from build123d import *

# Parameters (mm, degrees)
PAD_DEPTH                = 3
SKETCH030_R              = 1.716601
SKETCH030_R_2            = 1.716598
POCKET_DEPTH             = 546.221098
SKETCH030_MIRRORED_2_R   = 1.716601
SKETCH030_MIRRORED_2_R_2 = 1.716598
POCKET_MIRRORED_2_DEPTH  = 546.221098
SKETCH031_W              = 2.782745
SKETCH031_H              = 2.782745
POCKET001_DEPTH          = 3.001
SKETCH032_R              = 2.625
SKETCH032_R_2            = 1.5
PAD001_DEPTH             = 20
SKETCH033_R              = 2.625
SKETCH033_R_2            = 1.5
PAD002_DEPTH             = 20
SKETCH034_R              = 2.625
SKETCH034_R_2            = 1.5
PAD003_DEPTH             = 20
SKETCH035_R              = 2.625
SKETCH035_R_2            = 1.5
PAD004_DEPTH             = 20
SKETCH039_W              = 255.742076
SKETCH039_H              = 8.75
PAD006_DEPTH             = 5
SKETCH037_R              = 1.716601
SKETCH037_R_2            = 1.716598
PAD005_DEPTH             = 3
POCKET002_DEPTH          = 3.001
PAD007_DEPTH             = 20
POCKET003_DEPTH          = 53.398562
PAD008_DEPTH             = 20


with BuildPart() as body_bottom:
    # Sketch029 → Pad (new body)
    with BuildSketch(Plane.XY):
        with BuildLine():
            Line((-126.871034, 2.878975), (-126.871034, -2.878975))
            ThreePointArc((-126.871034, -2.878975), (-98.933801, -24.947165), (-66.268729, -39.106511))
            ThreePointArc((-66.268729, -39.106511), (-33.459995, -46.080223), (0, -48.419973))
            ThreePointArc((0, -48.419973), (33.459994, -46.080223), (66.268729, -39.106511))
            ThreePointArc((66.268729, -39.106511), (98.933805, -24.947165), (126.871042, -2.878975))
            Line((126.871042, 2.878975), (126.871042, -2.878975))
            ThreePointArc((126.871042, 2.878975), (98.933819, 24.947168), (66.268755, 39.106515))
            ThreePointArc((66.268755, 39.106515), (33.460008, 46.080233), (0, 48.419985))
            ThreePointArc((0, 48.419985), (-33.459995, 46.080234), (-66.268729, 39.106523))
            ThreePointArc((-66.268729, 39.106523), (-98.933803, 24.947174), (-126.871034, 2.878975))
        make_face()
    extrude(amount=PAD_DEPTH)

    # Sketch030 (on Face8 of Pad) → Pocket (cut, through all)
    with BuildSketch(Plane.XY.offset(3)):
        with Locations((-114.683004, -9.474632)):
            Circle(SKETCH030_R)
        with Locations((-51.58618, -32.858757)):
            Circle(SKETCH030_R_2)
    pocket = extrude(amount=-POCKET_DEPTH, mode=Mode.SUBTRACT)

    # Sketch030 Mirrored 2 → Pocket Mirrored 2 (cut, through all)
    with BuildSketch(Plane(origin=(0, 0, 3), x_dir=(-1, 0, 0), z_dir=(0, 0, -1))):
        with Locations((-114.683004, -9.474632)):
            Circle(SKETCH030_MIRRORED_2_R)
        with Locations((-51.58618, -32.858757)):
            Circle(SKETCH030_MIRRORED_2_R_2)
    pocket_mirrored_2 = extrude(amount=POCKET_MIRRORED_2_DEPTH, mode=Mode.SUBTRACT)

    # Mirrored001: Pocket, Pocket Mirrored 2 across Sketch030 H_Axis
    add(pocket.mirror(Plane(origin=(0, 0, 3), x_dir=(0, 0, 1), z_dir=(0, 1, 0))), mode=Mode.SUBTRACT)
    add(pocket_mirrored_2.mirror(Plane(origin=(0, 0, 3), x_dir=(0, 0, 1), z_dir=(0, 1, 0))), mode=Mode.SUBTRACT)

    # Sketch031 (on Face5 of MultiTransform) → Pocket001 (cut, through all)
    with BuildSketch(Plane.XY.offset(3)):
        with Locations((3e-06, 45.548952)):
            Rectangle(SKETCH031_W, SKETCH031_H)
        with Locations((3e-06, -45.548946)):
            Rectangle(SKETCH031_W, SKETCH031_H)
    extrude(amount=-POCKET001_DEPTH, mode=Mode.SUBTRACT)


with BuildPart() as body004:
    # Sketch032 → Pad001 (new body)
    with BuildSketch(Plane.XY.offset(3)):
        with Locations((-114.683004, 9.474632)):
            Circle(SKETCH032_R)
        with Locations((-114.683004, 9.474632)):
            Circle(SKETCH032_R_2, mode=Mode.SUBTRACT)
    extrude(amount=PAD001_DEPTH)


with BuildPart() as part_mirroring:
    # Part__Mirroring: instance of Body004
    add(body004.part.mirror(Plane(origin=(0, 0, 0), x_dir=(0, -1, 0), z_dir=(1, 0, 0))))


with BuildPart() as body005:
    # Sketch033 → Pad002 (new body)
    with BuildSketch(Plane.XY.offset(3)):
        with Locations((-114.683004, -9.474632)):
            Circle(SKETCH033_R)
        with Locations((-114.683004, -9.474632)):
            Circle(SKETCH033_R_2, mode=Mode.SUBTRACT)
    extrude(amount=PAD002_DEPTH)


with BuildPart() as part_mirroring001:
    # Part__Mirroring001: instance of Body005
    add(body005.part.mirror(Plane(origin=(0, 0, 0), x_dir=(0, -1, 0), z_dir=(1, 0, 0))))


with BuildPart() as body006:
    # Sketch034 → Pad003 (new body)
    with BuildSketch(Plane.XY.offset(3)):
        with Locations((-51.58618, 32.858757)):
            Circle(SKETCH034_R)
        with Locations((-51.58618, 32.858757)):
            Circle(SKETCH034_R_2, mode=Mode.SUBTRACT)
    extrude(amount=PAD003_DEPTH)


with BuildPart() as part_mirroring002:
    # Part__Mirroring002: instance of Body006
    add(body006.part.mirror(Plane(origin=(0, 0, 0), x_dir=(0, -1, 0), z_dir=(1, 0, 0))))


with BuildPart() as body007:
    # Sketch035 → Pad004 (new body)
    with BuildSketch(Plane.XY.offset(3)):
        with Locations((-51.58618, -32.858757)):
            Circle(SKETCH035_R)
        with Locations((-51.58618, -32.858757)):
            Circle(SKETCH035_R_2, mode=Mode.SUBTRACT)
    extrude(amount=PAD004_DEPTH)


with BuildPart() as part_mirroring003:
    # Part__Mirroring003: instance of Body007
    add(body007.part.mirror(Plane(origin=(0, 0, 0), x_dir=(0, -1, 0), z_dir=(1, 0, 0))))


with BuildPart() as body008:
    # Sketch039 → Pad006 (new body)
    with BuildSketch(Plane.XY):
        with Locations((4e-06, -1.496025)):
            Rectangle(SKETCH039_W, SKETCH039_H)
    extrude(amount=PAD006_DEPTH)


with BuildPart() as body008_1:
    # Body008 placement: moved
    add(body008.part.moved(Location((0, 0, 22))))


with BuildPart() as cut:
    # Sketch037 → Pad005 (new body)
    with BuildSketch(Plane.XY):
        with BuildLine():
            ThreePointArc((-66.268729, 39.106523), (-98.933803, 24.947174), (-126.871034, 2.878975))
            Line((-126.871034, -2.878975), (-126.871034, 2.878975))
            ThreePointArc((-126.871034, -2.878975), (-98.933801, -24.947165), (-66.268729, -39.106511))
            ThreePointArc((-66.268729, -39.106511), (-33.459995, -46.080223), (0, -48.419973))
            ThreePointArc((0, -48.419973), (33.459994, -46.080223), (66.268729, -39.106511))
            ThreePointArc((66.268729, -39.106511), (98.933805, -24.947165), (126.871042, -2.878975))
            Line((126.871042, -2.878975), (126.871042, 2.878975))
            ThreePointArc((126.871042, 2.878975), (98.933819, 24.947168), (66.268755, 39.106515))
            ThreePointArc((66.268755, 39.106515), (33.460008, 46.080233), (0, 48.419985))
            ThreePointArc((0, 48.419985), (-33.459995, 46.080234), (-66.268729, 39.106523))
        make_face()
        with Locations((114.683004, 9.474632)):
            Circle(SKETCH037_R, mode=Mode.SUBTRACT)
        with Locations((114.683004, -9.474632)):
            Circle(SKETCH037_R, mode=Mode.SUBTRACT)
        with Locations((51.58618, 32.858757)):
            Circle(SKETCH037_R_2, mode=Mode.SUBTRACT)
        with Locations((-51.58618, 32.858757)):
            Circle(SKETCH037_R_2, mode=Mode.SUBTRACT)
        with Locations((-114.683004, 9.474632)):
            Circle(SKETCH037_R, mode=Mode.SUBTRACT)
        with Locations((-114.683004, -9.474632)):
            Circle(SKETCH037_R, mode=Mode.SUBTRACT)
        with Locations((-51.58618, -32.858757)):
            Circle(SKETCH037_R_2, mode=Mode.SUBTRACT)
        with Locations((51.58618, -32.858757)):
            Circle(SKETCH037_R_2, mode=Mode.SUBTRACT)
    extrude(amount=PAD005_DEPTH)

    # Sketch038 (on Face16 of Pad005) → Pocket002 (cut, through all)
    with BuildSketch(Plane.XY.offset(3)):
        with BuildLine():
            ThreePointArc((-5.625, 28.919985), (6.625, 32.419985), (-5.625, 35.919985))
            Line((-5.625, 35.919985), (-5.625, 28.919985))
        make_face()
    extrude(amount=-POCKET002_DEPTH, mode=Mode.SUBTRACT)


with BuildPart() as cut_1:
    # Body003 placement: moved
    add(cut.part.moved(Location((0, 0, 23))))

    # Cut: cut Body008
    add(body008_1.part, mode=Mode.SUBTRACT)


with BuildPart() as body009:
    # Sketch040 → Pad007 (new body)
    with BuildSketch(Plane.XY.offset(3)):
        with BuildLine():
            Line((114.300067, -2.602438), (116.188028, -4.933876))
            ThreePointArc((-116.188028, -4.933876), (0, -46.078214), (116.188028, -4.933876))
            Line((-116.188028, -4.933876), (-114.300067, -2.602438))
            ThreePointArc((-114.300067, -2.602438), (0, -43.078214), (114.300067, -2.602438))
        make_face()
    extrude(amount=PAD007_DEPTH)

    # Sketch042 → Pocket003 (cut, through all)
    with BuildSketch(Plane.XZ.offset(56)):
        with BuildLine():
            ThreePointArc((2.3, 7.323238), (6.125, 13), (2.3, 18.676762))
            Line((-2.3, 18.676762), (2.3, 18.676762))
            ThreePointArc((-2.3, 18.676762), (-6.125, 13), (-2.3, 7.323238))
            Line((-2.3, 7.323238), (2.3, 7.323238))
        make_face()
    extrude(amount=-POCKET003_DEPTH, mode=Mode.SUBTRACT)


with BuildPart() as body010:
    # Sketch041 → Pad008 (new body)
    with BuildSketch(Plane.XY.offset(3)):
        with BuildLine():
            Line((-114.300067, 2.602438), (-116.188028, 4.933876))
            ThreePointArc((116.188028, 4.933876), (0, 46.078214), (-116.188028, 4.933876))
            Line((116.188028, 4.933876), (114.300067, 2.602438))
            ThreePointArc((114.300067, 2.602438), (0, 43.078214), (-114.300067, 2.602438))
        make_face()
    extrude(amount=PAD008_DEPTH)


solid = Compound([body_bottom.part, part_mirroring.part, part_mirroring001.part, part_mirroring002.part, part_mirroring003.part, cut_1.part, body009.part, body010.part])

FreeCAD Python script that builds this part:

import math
import FreeCAD as App
import Part
import Sketcher
Q = App.Units.Quantity


def add_polygon(sketch, points):
    """Adds a closed chain of lines whose ends are joined by coincident constraints."""
    first, n = sketch.GeometryCount, len(points)
    for a, b in zip(points, points[1:] + points[:1]):
        sketch.addGeometry(Part.LineSegment(App.Vector(*a, 0), App.Vector(*b, 0)), False)
    for i in range(n):
        sketch.addConstraint(Sketcher.Constraint("Coincident", first + i, 2, first + (i + 1) % n, 1))

doc = App.newDocument("Part")
body = doc.addObject("PartDesign::Body", "Body")

# Sketch on XY plane
sketch1 = doc.addObject("Sketcher::SketchObject", "Sketch")
body.addObject(sketch1)
sketch1.AttachmentSupport = (doc.XY_Plane, [""])
sketch1.MapMode = "FlatFace"
sketch1.addGeometry([
    Part.LineSegment(App.Vector(-126.871034, 2.878975, 0), App.Vector(-126.871034, -2.878975, 0)),  # 0
    Part.ArcOfCircle(Part.Circle(App.Vector(-28.352566, 93.122845, 0), App.Vector(0, 0, 1), 137.558126), math.radians(-135.741235), math.radians(-106.000002)),  # 1
    Part.ArcOfCircle(Part.Circle(App.Vector(-0.000009, 191.999957, 0), App.Vector(0, 0, 1), 240.41993), math.radians(-106.000001), math.radians(-89.999998)),  # 2
    Part.ArcOfCircle(Part.Circle(App.Vector(0.000007, 191.999971, 0), App.Vector(0, 0, 1), 240.419944), math.radians(-90.000002), math.radians(-73.999999)),  # 3
    Part.ArcOfCircle(Part.Circle(App.Vector(28.352563, 93.122871, 0), App.Vector(0, 0, 1), 137.558152), math.radians(-74), math.radians(-44.25877)),  # 4
    Part.LineSegment(App.Vector(126.871042, -2.878975, 0), App.Vector(126.871042, 2.878975, 0)),  # 5
    Part.ArcOfCircle(Part.Circle(App.Vector(28.35261, -93.122751, 0), App.Vector(0, 0, 1), 137.558035), math.radians(44.258747), math.radians(73.999995)),  # 6
    Part.ArcOfCircle(Part.Circle(App.Vector(0.000009, -191.999936, 0), App.Vector(0, 0, 1), 240.419921), math.radians(73.999991), math.radians(90.000002)),  # 7
    Part.ArcOfCircle(Part.Circle(App.Vector(0.000005, -192.000046, 0), App.Vector(0, 0, 1), 240.420031), math.radians(90.000001), math.radians(105.999998)),  # 8
    Part.ArcOfCircle(Part.Circle(App.Vector(-28.352592, -93.122757, 0), App.Vector(0, 0, 1), 137.558045), math.radians(106), math.radians(135.741254)),  # 9
], False)
sketch1.addConstraint([
    Sketcher.Constraint("Coincident", 0, 2, 1, 1),
    Sketcher.Constraint("Coincident", 1, 2, 2, 1),
    Sketcher.Constraint("Coincident", 2, 2, 3, 1),
    Sketcher.Constraint("Coincident", 3, 2, 4, 1),
    Sketcher.Constraint("Coincident", 4, 2, 5, 1),
    Sketcher.Constraint("Coincident", 5, 2, 6, 1),
    Sketcher.Constraint("Coincident", 6, 2, 7, 1),
    Sketcher.Constraint("Coincident", 7, 2, 8, 1),
    Sketcher.Constraint("Coincident", 8, 2, 9, 1),
    Sketcher.Constraint("Coincident", 9, 2, 0, 1),
    Sketcher.Constraint("Vertical", 0),
    Sketcher.Constraint("Vertical", 5),
    Sketcher.Constraint("PointOnObject", 2, 2, -2),
    Sketcher.Constraint("PointOnObject", 7, 2, -2),
    Sketcher.Constraint("Radius", 2, 240.41993),
    Sketcher.Constraint("Radius", 4, 137.558152),
    Sketcher.Constraint("Radius", 7, 240.419921),
    Sketcher.Constraint("Radius", 8, 240.420031),
    Sketcher.Constraint("Radius", 1, 137.558126),
    Sketcher.Constraint("Radius", 3, 240.419944),
    Sketcher.Constraint("Radius", 6, 137.558035),
    Sketcher.Constraint("Radius", 9, 137.558045),
    Sketcher.Constraint("DistanceY", 2, 2, 4, 2, 45.540998),
    Sketcher.Constraint("DistanceY", 0, 2, 0, 1, 5.75795),
    Sketcher.Constraint("DistanceY", 5, 1, 5, 2, 5.75795),
    Sketcher.Constraint("DistanceY", 4, 3, 3, 3, 98.8771),
    Sketcher.Constraint("DistanceX", 7, 3, 6, 3, 28.352601),
    Sketcher.Constraint("DistanceX", 9, 3, 7, 3, 28.352601),
    Sketcher.Constraint("DistanceY", 9, 3, 1, 3, 186.245601),
    Sketcher.Constraint("DistanceY", 0, 2, 8, 2, 41.985498),
    Sketcher.Constraint("DistanceY", -1, 1, 3, 3, 191.999971),
    Sketcher.Constraint("DistanceX", -1, 1, 6, 3, 28.35261),
    Sketcher.Constraint("DistanceY", 6, 3, -1, 1, 93.122751),
    Sketcher.Constraint("DistanceX", 1, 2, -1, 1, 66.268729),
    Sketcher.Constraint("DistanceY", 1, 2, -1, 1, 39.106511),
    Sketcher.Constraint("DistanceX", -1, 1, 3, 2, 66.268729),
    Sketcher.Constraint("DistanceX", 8, 2, -1, 1, 66.268729),
    Sketcher.Constraint("DistanceX", 4, 3, 6, 2, 37.916192),
])
pad1 = doc.addObject("PartDesign::Pad", "Pad")
body.addObject(pad1)
pad1.Profile = sketch1
pad1.Length = 3

# Sketch on XY plane
sketch2 = doc.addObject("Sketcher::SketchObject", "Sketch001")
body.addObject(sketch2)
sketch2.AttachmentSupport = (doc.XY_Plane, [""])
sketch2.MapMode = "FlatFace"
sketch2.AttachmentOffset = App.Placement(App.Vector(0, 0, 3), App.Rotation())
sketch2.addGeometry([
    Part.Circle(App.Vector(-114.683004, -9.474632, 0), App.Vector(0, 0, 1), 1.716601),
    Part.Circle(App.Vector(-51.58618, -32.858757, 0), App.Vector(0, 0, 1), 1.716598),
], False)
sketch2.addConstraint([
    Sketcher.Constraint("Diameter", 0, 3.433202),
    Sketcher.Constraint("Diameter", 1, 3.433196),
    Sketcher.Constraint("DistanceX", 1, 3, -1, 1, 51.58618),
    Sketcher.Constraint("DistanceX", 0, 3, -1, 1, 114.683004),
    Sketcher.Constraint("DistanceY", 0, 3, -1, 1, 9.474632),
    Sketcher.Constraint("DistanceY", 1, 3, -1, 1, 32.858757),
])
pocket1 = doc.addObject("PartDesign::Pocket", "Pocket")
body.addObject(pocket1)
pocket1.Profile = sketch2
pocket1.Type = "ThroughAll"

# Sketch on XY plane
sketch3 = doc.addObject("Sketcher::SketchObject", "Sketch002")
body.addObject(sketch3)
sketch3.AttachmentSupport = (doc.XY_Plane, [""])
sketch3.MapMode = "FlatFace"
sketch3.AttachmentOffset = App.Placement(App.Vector(0, 0, 3), App.Rotation())
sketch3.addGeometry([
    Part.Circle(App.Vector(114.683004, -9.474632, 0), App.Vector(0, 0, 1), 1.716601),
    Part.Circle(App.Vector(51.58618, -32.858757, 0), App.Vector(0, 0, 1), 1.716598),
], False)
sketch3.addConstraint([
    Sketcher.Constraint("Diameter", 0, 3.433202),
    Sketcher.Constraint("Diameter", 1, 3.433196),
    Sketcher.Constraint("DistanceX", -1, 1, 1, 3, 51.58618),
    Sketcher.Constraint("DistanceX", -1, 1, 0, 3, 114.683004),
    Sketcher.Constraint("DistanceY", 0, 3, -1, 1, 9.474632),
    Sketcher.Constraint("DistanceY", 1, 3, -1, 1, 32.858757),
])
pocket2 = doc.addObject("PartDesign::Pocket", "Pocket001")
body.addObject(pocket2)
pocket2.Profile = sketch3
pocket2.Type = "ThroughAll"
doc.recompute()

mirrored = doc.addObject("PartDesign::Mirrored", "Mirrored")
body.addObject(mirrored)
mirrored.Originals = [pocket1, pocket2]
mirrored.MirrorPlane = (doc.XZ_Plane, [""])
body.Tip = mirrored

# Sketch on XY plane
sketch4 = doc.addObject("Sketcher::SketchObject", "Sketch003")
body.addObject(sketch4)
sketch4.AttachmentSupport = (doc.XY_Plane, [""])
sketch4.MapMode = "FlatFace"
sketch4.AttachmentOffset = App.Placement(App.Vector(0, 0, 3), App.Rotation())
add_polygon(sketch4, [(-1.391369, 46.940325), (-1.391369, 44.157579), (1.391376, 44.157579), (1.391376, 46.940325)])  # lines 0-3
add_polygon(sketch4, [(-1.391369, -44.157573), (-1.391369, -46.940318), (1.391376, -46.940318), (1.391376, -44.157573)])  # lines 4-7
sketch4.addConstraint([
    Sketcher.Constraint("Vertical", 0),
    Sketcher.Constraint("Horizontal", 1),
    Sketcher.Constraint("Vertical", 2),
    Sketcher.Constraint("Horizontal", 3),
    Sketcher.Constraint("Vertical", 4),
    Sketcher.Constraint("Horizontal", 5),
    Sketcher.Constraint("Vertical", 6),
    Sketcher.Constraint("Horizontal", 7),
    Sketcher.Constraint("Symmetric", 2, 2, 4, 2, -1, 1),
    Sketcher.Constraint("Symmetric", 0, 2, 6, 2, -1, 1),
    Sketcher.Constraint("Vertical", 3, 2, 4, 2),
    Sketcher.Constraint("Equal", 7, 0),
    Sketcher.Constraint("DistanceY", 6, 2, 2, 2, 91.097898),
    Sketcher.Constraint("DistanceX", 1, 1, 1, 2, 2.782745),
])
pocket3 = doc.addObject("PartDesign::Pocket", "Pocket002")
body.addObject(pocket3)
pocket3.Profile = sketch4
pocket3.Type = "ThroughAll"
body2 = doc.addObject("PartDesign::Body", "Body001")

# Sketch on XY plane
sketch5 = doc.addObject("Sketcher::SketchObject", "Sketch004")
body2.addObject(sketch5)
sketch5.AttachmentSupport = (doc.getObject("XY_Plane001"), [""])
sketch5.MapMode = "FlatFace"
sketch5.AttachmentOffset = App.Placement(App.Vector(0, 0, 3), App.Rotation())
sketch5.addGeometry([
    Part.Circle(App.Vector(-114.683004, 9.474632, 0), App.Vector(0, 0, 1), 2.625),
    Part.Circle(App.Vector(-114.683004, 9.474632, 0), App.Vector(0, 0, 1), 1.5),
], False)
sketch5.addConstraint([
    Sketcher.Constraint("Coincident", 1, 3, 0, 3),
    Sketcher.Constraint("Diameter", 1, 3.0),
    Sketcher.Constraint("Diameter", 0, 5.25),
    Sketcher.Constraint("DistanceX", 0, 3, -1, 1, 114.683004),
    Sketcher.Constraint("DistanceY", -1, 1, 0, 3, 9.474632),
])
pad2 = doc.addObject("PartDesign::Pad", "Pad001")
body2.addObject(pad2)
pad2.Profile = sketch5
pad2.Length = 20
body3 = doc.addObject("PartDesign::Body", "Body002")
doc.recompute()

mirroring = doc.addObject("Part::Mirroring", "Mirroring")
mirroring.Source = body2
mirroring.Base = App.Vector(0, 0, 0)
mirroring.Normal = App.Vector(1, 0, 0)
body3.BaseFeature = mirroring
doc.recompute()
body4 = doc.addObject("PartDesign::Body", "Body003")

# Sketch on XY plane
sketch6 = doc.addObject("Sketcher::SketchObject", "Sketch005")
body4.addObject(sketch6)
sketch6.AttachmentSupport = (doc.getObject("XY_Plane003"), [""])
sketch6.MapMode = "FlatFace"
sketch6.AttachmentOffset = App.Placement(App.Vector(0, 0, 3), App.Rotation())
sketch6.addGeometry([
    Part.Circle(App.Vector(-114.683004, -9.474632, 0), App.Vector(0, 0, 1), 2.625),
    Part.Circle(App.Vector(-114.683004, -9.474632, 0), App.Vector(0, 0, 1), 1.5),
], False)
sketch6.addConstraint([
    Sketcher.Constraint("Coincident", 1, 3, 0, 3),
    Sketcher.Constraint("Diameter", 1, 3.0),
    Sketcher.Constraint("Diameter", 0, 5.25),
    Sketcher.Constraint("DistanceX", 0, 3, -1, 1, 114.683004),
    Sketcher.Constraint("DistanceY", 0, 3, -1, 1, 9.474632),
])
pad3 = doc.addObject("PartDesign::Pad", "Pad002")
body4.addObject(pad3)
pad3.Profile = sketch6
pad3.Length = 20
body5 = doc.addObject("PartDesign::Body", "Body004")
doc.recompute()

mirroring2 = doc.addObject("Part::Mirroring", "Mirroring001")
mirroring2.Source = body4
mirroring2.Base = App.Vector(0, 0, 0)
mirroring2.Normal = App.Vector(1, 0, 0)
body5.BaseFeature = mirroring2
doc.recompute()
body6 = doc.addObject("PartDesign::Body", "Body005")

# Sketch on XY plane
sketch7 = doc.addObject("Sketcher::SketchObject", "Sketch006")
body6.addObject(sketch7)
sketch7.AttachmentSupport = (doc.getObject("XY_Plane005"), [""])
sketch7.MapMode = "FlatFace"
sketch7.AttachmentOffset = App.Placement(App.Vector(0, 0, 3), App.Rotation())
sketch7.addGeometry([
    Part.Circle(App.Vector(-51.58618, 32.858757, 0), App.Vector(0, 0, 1), 2.625),
    Part.Circle(App.Vector(-51.58618, 32.858757, 0), App.Vector(0, 0, 1), 1.5),
], False)
sketch7.addConstraint([
    Sketcher.Constraint("Coincident", 1, 3, 0, 3),
    Sketcher.Constraint("Diameter", 1, 3.0),
    Sketcher.Constraint("Diameter", 0, 5.25),
    Sketcher.Constraint("DistanceX", 0, 3, -1, 1, 51.58618),
    Sketcher.Constraint("DistanceY", -1, 1, 0, 3, 32.858757),
])
pad4 = doc.addObject("PartDesign::Pad", "Pad003")
body6.addObject(pad4)
pad4.Profile = sketch7
pad4.Length = 20
body7 = doc.addObject("PartDesign::Body", "Body006")
doc.recompute()

mirroring3 = doc.addObject("Part::Mirroring", "Mirroring002")
mirroring3.Source = body6
mirroring3.Base = App.Vector(0, 0, 0)
mirroring3.Normal = App.Vector(1, 0, 0)
body7.BaseFeature = mirroring3
doc.recompute()
body8 = doc.addObject("PartDesign::Body", "Body007")

# Sketch on XY plane
sketch8 = doc.addObject("Sketcher::SketchObject", "Sketch007")
body8.addObject(sketch8)
sketch8.AttachmentSupport = (doc.getObject("XY_Plane007"), [""])
sketch8.MapMode = "FlatFace"
sketch8.AttachmentOffset = App.Placement(App.Vector(0, 0, 3), App.Rotation())
sketch8.addGeometry([
    Part.Circle(App.Vector(-51.58618, -32.858757, 0), App.Vector(0, 0, 1), 2.625),
    Part.Circle(App.Vector(-51.58618, -32.858757, 0), App.Vector(0, 0, 1), 1.5),
], False)
sketch8.addConstraint([
    Sketcher.Constraint("Coincident", 1, 3, 0, 3),
    Sketcher.Constraint("Diameter", 1, 3.0),
    Sketcher.Constraint("Diameter", 0, 5.25),
    Sketcher.Constraint("DistanceX", 0, 3, -1, 1, 51.58618),
    Sketcher.Constraint("DistanceY", 0, 3, -1, 1, 32.858757),
])
pad5 = doc.addObject("PartDesign::Pad", "Pad004")
body8.addObject(pad5)
pad5.Profile = sketch8
pad5.Length = 20
body9 = doc.addObject("PartDesign::Body", "Body008")
doc.recompute()

mirroring4 = doc.addObject("Part::Mirroring", "Mirroring003")
mirroring4.Source = body8
mirroring4.Base = App.Vector(0, 0, 0)
mirroring4.Normal = App.Vector(1, 0, 0)
body9.BaseFeature = mirroring4
doc.recompute()
body10 = doc.addObject("PartDesign::Body", "Body009")

# Sketch on XY plane
sketch9 = doc.addObject("Sketcher::SketchObject", "Sketch008")
body10.addObject(sketch9)
sketch9.AttachmentSupport = (doc.getObject("XY_Plane009"), [""])
sketch9.MapMode = "FlatFace"
add_polygon(sketch9, [(-127.871034, 2.878975), (-127.871034, -5.871025), (127.871042, -5.871025), (127.871042, 2.878975)])  # lines 0-3
sketch9.addConstraint([
    Sketcher.Constraint("Vertical", 0),
    Sketcher.Constraint("Horizontal", 1),
    Sketcher.Constraint("Vertical", 2),
    Sketcher.Constraint("Horizontal", 3),
    Sketcher.Constraint("DistanceY", 0, 2, 0, 1, 8.75),
    Sketcher.Constraint("DistanceX", 1, 1, 1, 2, 255.742076),
    Sketcher.Constraint("DistanceX", 0, 2, -1, 1, 127.871034),
    Sketcher.Constraint("DistanceY", 0, 2, -1, 1, 5.871025),
])
pad6 = doc.addObject("PartDesign::Pad", "Pad005")
body10.addObject(pad6)
pad6.Profile = sketch9
pad6.Length = 5
body11 = doc.addObject("PartDesign::Body", "Body010")
doc.recompute()

body10.Placement = App.Placement(App.Vector(0, 0, 22), App.Rotation(App.Vector(0, 0, 1), 0))
boolean = doc.addObject("PartDesign::Boolean", "Boolean")
body11.addObject(boolean)
boolean.Type = "Fuse"
boolean.addObjects([body10])
body12 = doc.addObject("PartDesign::Body", "Body011")

# Sketch on XY plane
sketch10 = doc.addObject("Sketcher::SketchObject", "Sketch009")
body12.addObject(sketch10)
sketch10.AttachmentSupport = (doc.getObject("XY_Plane011"), [""])
sketch10.MapMode = "FlatFace"
sketch10.addGeometry([
    Part.ArcOfCircle(Part.Circle(App.Vector(-28.352592, -93.122757, 0), App.Vector(0, 0, 1), 137.558045), math.radians(106), math.radians(135.741254)),  # 0
    Part.LineSegment(App.Vector(-126.871034, 2.878975, 0), App.Vector(-126.871034, -2.878975, 0)),  # 1
    Part.ArcOfCircle(Part.Circle(App.Vector(-28.352566, 93.122845, 0), App.Vector(0, 0, 1), 137.558126), math.radians(-135.741235), math.radians(-106.000002)),  # 2
    Part.ArcOfCircle(Part.Circle(App.Vector(-0.000009, 191.999957, 0), App.Vector(0, 0, 1), 240.41993), math.radians(-106.000001), math.radians(-89.999998)),  # 3
    Part.ArcOfCircle(Part.Circle(App.Vector(0.000007, 191.999971, 0), App.Vector(0, 0, 1), 240.419944), math.radians(-90.000002), math.radians(-73.999999)),  # 4
    Part.ArcOfCircle(Part.Circle(App.Vector(28.352563, 93.122871, 0), App.Vector(0, 0, 1), 137.558152), math.radians(-74), math.radians(-44.25877)),  # 5
    Part.LineSegment(App.Vector(126.871042, -2.878975, 0), App.Vector(126.871042, 2.878975, 0)),  # 6
    Part.ArcOfCircle(Part.Circle(App.Vector(28.35261, -93.122751, 0), App.Vector(0, 0, 1), 137.558035), math.radians(44.258747), math.radians(73.999995)),  # 7
    Part.ArcOfCircle(Part.Circle(App.Vector(0.000009, -191.999936, 0), App.Vector(0, 0, 1), 240.419921), math.radians(73.999991), math.radians(90.000002)),  # 8
    Part.ArcOfCircle(Part.Circle(App.Vector(0.000005, -192.000046, 0), App.Vector(0, 0, 1), 240.420031), math.radians(90.000001), math.radians(105.999998)),  # 9
    Part.Circle(App.Vector(-51.58618, -32.858757, 0), App.Vector(0, 0, 1), 1.716598),  # 10
    Part.Circle(App.Vector(-114.683004, -9.474632, 0), App.Vector(0, 0, 1), 1.716601),  # 11
    Part.Circle(App.Vector(51.58618, -32.858757, 0), App.Vector(0, 0, 1), 1.716598),  # 12
    Part.Circle(App.Vector(114.683004, -9.474632, 0), App.Vector(0, 0, 1), 1.716601),  # 13
    Part.Circle(App.Vector(-114.683004, 9.474632, 0), App.Vector(0, 0, 1), 1.716601),  # 14
    Part.Circle(App.Vector(-51.58618, 32.858757, 0), App.Vector(0, 0, 1), 1.716598),  # 15
    Part.Circle(App.Vector(114.683004, 9.474632, 0), App.Vector(0, 0, 1), 1.716601),  # 16
    Part.Circle(App.Vector(51.58618, 32.858757, 0), App.Vector(0, 0, 1), 1.716598),  # 17
], False)
sketch10.addConstraint([
    Sketcher.Constraint("Coincident", 0, 2, 1, 1),
    Sketcher.Constraint("Coincident", 1, 2, 2, 1),
    Sketcher.Constraint("Coincident", 2, 2, 3, 1),
    Sketcher.Constraint("Coincident", 3, 2, 4, 1),
    Sketcher.Constraint("Coincident", 4, 2, 5, 1),
    Sketcher.Constraint("Coincident", 5, 2, 6, 1),
    Sketcher.Constraint("Coincident", 6, 2, 7, 1),
    Sketcher.Constraint("Coincident", 7, 2, 8, 1),
    Sketcher.Constraint("Coincident", 8, 2, 9, 1),
    Sketcher.Constraint("Coincident", 9, 2, 0, 1),
    Sketcher.Constraint("Vertical", 1),
    Sketcher.Constraint("Vertical", 6),
    Sketcher.Constraint("PointOnObject", 3, 2, -2),
    Sketcher.Constraint("PointOnObject", 8, 2, -2),
    Sketcher.Constraint("Radius", 3, 240.41993),
    Sketcher.Constraint("Radius", 5, 137.558152),
    Sketcher.Constraint("Radius", 8, 240.419921),
    Sketcher.Constraint("Radius", 9, 240.420031),
    Sketcher.Constraint("Diameter", 10, 3.433196),
    Sketcher.Constraint("Diameter", 11, 3.433202),
    Sketcher.Constraint("Diameter", 12, 3.433196),
    Sketcher.Constraint("Diameter", 13, 3.433202),
    Sketcher.Constraint("Diameter", 14, 3.433202),
    Sketcher.Constraint("Diameter", 15, 3.433196),
    Sketcher.Constraint("Diameter", 16, 3.433202),
    Sketcher.Constraint("Diameter", 17, 3.433196),
    Sketcher.Constraint("Radius", 0, 137.558045),
    Sketcher.Constraint("Radius", 2, 137.558126),
    Sketcher.Constraint("Radius", 4, 240.419944),
    Sketcher.Constraint("Radius", 7, 137.558035),
    Sketcher.Constraint("DistanceY", 0, 3, 10, 3, 60.264),
    Sketcher.Constraint("DistanceY", 0, 3, 12, 3, 60.264),
    Sketcher.Constraint("DistanceY", 1, 2, 1, 1, 5.75795),
    Sketcher.Constraint("DistanceY", 6, 1, 6, 2, 5.75795),
    Sketcher.Constraint("DistanceY", 0, 3, 2, 3, 186.245601),
    Sketcher.Constraint("DistanceX", 0, 3, 4, 3, 28.3526),
    Sketcher.Constraint("DistanceY", 5, 3, 4, 3, 98.8771),
    Sketcher.Constraint("DistanceX", 0, 3, 8, 3, 28.352601),
    Sketcher.Constraint("DistanceX", 8, 3, 7, 3, 28.352601),
    Sketcher.Constraint("DistanceY", -1, 1, 4, 3, 191.999971),
    Sketcher.Constraint("DistanceX", -1, 1, 7, 3, 28.35261),
    Sketcher.Constraint("DistanceY", 7, 3, -1, 1, 93.122751),
    Sketcher.Constraint("DistanceX", 10, 3, -1, 1, 51.58618),
    Sketcher.Constraint("DistanceX", -1, 1, 12, 3, 51.58618),
    Sketcher.Constraint("DistanceX", 15, 3, -1, 1, 51.58618),
    Sketcher.Constraint("DistanceX", -1, 1, 17, 3, 51.58618),
    Sketcher.Constraint("DistanceX", 2, 2, -1, 1, 66.268729),
    Sketcher.Constraint("DistanceY", 2, 2, -1, 1, 39.106511),
    Sketcher.Constraint("DistanceX", -1, 1, 4, 2, 66.268729),
    Sketcher.Constraint("DistanceX", 9, 2, -1, 1, 66.268729),
    Sketcher.Constraint("DistanceX", 2, 3, 5, 3, 56.705129),
    Sketcher.Constraint("DistanceX", 11, 3, 0, 3, 86.330412),
    Sketcher.Constraint("DistanceY", 7, 3, 11, 3, 83.648119),
    Sketcher.Constraint("DistanceY", 7, 3, 13, 3, 83.648119),
    Sketcher.Constraint("DistanceX", 5, 3, 13, 3, 86.330441),
    Sketcher.Constraint("DistanceY", 10, 3, 14, 3, 42.333389),
    Sketcher.Constraint("DistanceX", 14, 3, 0, 3, 86.330412),
    Sketcher.Constraint("DistanceY", 11, 3, 15, 3, 42.333389),
    Sketcher.Constraint("DistanceY", 12, 3, 16, 3, 42.333389),
    Sketcher.Constraint("DistanceX", 5, 3, 16, 3, 86.330441),
    Sketcher.Constraint("DistanceY", 13, 3, 17, 3, 42.333389),
    Sketcher.Constraint("DistanceY", 17, 3, 7, 2, 6.247758),
])
pad7 = doc.addObject("PartDesign::Pad", "Pad006")
body12.addObject(pad7)
pad7.Profile = sketch10
pad7.Length = 3

# Sketch on XY plane
sketch11 = doc.addObject("Sketcher::SketchObject", "Sketch010")
body12.addObject(sketch11)
sketch11.AttachmentSupport = (doc.getObject("XY_Plane011"), [""])
sketch11.MapMode = "FlatFace"
sketch11.AttachmentOffset = App.Placement(App.Vector(0, 0, 3), App.Rotation())
sketch11.addGeometry([
    Part.ArcOfCircle(Part.Circle(App.Vector(0, 32.419985, 0), App.Vector(0, 0, 1), 6.625), math.radians(-148.109208), math.radians(148.109208)),
    Part.LineSegment(App.Vector(-5.625, 35.919985, 0), App.Vector(-5.625, 28.919985, 0)),
], False)
sketch11.addConstraint([
    Sketcher.Constraint("Coincident", 0, 1, 1, 2),
    Sketcher.Constraint("Coincident", 1, 1, 0, 2),
    Sketcher.Constraint("Vertical", 1),
    Sketcher.Constraint("PointOnObject", 0, 3, -2),
    Sketcher.Constraint("DistanceY", 1, 2, 1, 1, 7.0),
    Sketcher.Constraint("Radius", 0, 6.625),
    Sketcher.Constraint("DistanceY", -1, 1, 0, 3, 32.419985),
])
pocket4 = doc.addObject("PartDesign::Pocket", "Pocket003")
body12.addObject(pocket4)
pocket4.Profile = sketch11
pocket4.Type = "ThroughAll"
body13 = doc.addObject("PartDesign::Body", "Body012")
body13.AllowCompound = True
doc.recompute()

body12.Placement = App.Placement(App.Vector(0, 0, 23), App.Rotation(App.Vector(0, 0, 1), 0))
boolean2 = doc.addObject("PartDesign::Boolean", "Boolean001")
body13.addObject(boolean2)
boolean2.Type = "Fuse"
boolean2.addObjects([body12])
doc.recompute()

boolean3 = doc.addObject("PartDesign::Boolean", "Boolean002")
body13.addObject(boolean3)
boolean3.Type = "Cut"
boolean3.addObjects([body11])
body14 = doc.addObject("PartDesign::Body", "Body013")

# Sketch on XY plane
sketch12 = doc.addObject("Sketcher::SketchObject", "Sketch011")
body14.addObject(sketch12)
sketch12.AttachmentSupport = (doc.getObject("XY_Plane013"), [""])
sketch12.MapMode = "FlatFace"
sketch12.AttachmentOffset = App.Placement(App.Vector(0, 0, 3), App.Rotation())
sketch12.addGeometry([
    Part.LineSegment(App.Vector(116.188028, -4.933876, 0), App.Vector(114.300067, -2.602438, 0)),
    Part.ArcOfCircle(Part.Circle(App.Vector(0, 138.546392, 0), App.Vector(0, 0, 1), 181.624606), math.radians(-128.999999), math.radians(-51.000001)),
    Part.LineSegment(App.Vector(-114.300067, -2.602438, 0), App.Vector(-116.188028, -4.933876, 0)),
    Part.ArcOfCircle(Part.Circle(App.Vector(0, 138.546392, 0), App.Vector(0, 0, 1), 184.624606), math.radians(-128.999999), math.radians(-51.000001)),
], False)
sketch12.addConstraint([
    Sketcher.Constraint("Coincident", 0, 2, 1, 2),
    Sketcher.Constraint("Coincident", 1, 1, 2, 1),
    Sketcher.Constraint("Coincident", 2, 2, 3, 1),
    Sketcher.Constraint("Coincident", 3, 2, 0, 1),
    Sketcher.Constraint("Coincident", 3, 3, 1, 3),
    Sketcher.Constraint("Symmetric", 0, 2, 1, 1, -2),
    Sketcher.Constraint("Horizontal", 2, 2, 3, 2),
    Sketcher.Constraint("Angle", 0, Q("128.999996 deg")),
    Sketcher.Constraint("Distance", 0, 3.0),
    Sketcher.Constraint("Radius", 1, 181.624606),
    Sketcher.Constraint("DistanceY", 1, 1, -1, 1, 2.602438),
    Sketcher.Constraint("DistanceX", 2, 2, -1, 1, 116.188028),
])
pad8 = doc.addObject("PartDesign::Pad", "Pad007")
body14.addObject(pad8)
pad8.Profile = sketch12
pad8.Length = 20

# Sketch on XZ plane
sketch13 = doc.addObject("Sketcher::SketchObject", "Sketch012")
body14.addObject(sketch13)
sketch13.AttachmentSupport = (doc.getObject("XZ_Plane013"), [""])
sketch13.MapMode = "FlatFace"
sketch13.AttachmentOffset = App.Placement(App.Vector(0, 0, 56), App.Rotation())
sketch13.addGeometry([
    Part.ArcOfCircle(Part.Circle(App.Vector(0, 13, 0), App.Vector(0, 0, 1), 6.125), math.radians(-67.944148), math.radians(67.944148)),
    Part.LineSegment(App.Vector(2.3, 18.676762, 0), App.Vector(-2.3, 18.676762, 0)),
    Part.ArcOfCircle(Part.Circle(App.Vector(0, 13, 0), App.Vector(0, 0, 1), 6.125), math.radians(112.055852), math.radians(247.944148)),
    Part.LineSegment(App.Vector(-2.3, 7.323238, 0), App.Vector(2.3, 7.323238, 0)),
], False)
sketch13.addConstraint([
    Sketcher.Constraint("Coincident", 0, 2, 1, 1),
    Sketcher.Constraint("Coincident", 1, 2, 2, 1),
    Sketcher.Constraint("Coincident", 2, 2, 3, 1),
    Sketcher.Constraint("Coincident", 3, 2, 0, 1),
    Sketcher.Constraint("Horizontal", 1),
    Sketcher.Constraint("Horizontal", 3),
    Sketcher.Constraint("Coincident", 2, 3, 0, 3),
    Sketcher.Constraint("Equal", 0, 2),
    Sketcher.Constraint("PointOnObject", 0, 3, -2),
    Sketcher.Constraint("Vertical", 1, 2, 2, 2),
    Sketcher.Constraint("DistanceX", 1, 2, 1, 1, 4.6),
    Sketcher.Constraint("DistanceY", -1, 1, 0, 3, 13.0),
    Sketcher.Constraint("Radius", 0, 6.125),
])
pocket5 = doc.addObject("PartDesign::Pocket", "Pocket004")
body14.addObject(pocket5)
pocket5.Profile = sketch13
pocket5.Type = "ThroughAll"
body15 = doc.addObject("PartDesign::Body", "Body014")

# Sketch on XY plane
sketch14 = doc.addObject("Sketcher::SketchObject", "Sketch013")
body15.addObject(sketch14)
sketch14.AttachmentSupport = (doc.getObject("XY_Plane014"), [""])
sketch14.MapMode = "FlatFace"
sketch14.AttachmentOffset = App.Placement(App.Vector(0, 0, 3), App.Rotation())
sketch14.addGeometry([
    Part.LineSegment(App.Vector(-116.188028, 4.933876, 0), App.Vector(-114.300067, 2.602438, 0)),
    Part.ArcOfCircle(Part.Circle(App.Vector(0, -138.546392, 0), App.Vector(0, 0, 1), 181.624606), math.radians(51.000001), math.radians(128.999999)),
    Part.LineSegment(App.Vector(114.300067, 2.602438, 0), App.Vector(116.188028, 4.933876, 0)),
    Part.ArcOfCircle(Part.Circle(App.Vector(0, -138.546392, 0), App.Vector(0, 0, 1), 184.624606), math.radians(51.000001), math.radians(128.999999)),
], False)
sketch14.addConstraint([
    Sketcher.Constraint("Coincident", 0, 2, 1, 2),
    Sketcher.Constraint("Coincident", 1, 1, 2, 1),
    Sketcher.Constraint("Coincident", 2, 2, 3, 1),
    Sketcher.Constraint("Coincident", 3, 2, 0, 1),
    Sketcher.Constraint("Coincident", 3, 3, 1, 3),
    Sketcher.Constraint("Symmetric", 0, 2, 1, 1, -2),
    Sketcher.Constraint("Horizontal", 2, 2, 3, 2),
    Sketcher.Constraint("Angle", 0, Q("-51.000004 deg")),
    Sketcher.Constraint("Distance", 0, 3.0),
    Sketcher.Constraint("Radius", 1, 181.624606),
    Sketcher.Constraint("DistanceY", -1, 1, 1, 1, 2.602438),
    Sketcher.Constraint("DistanceX", -1, 1, 2, 2, 116.188028),
])
pad9 = doc.addObject("PartDesign::Pad", "Pad008")
body15.addObject(pad9)
pad9.Profile = sketch14
pad9.Length = 20
body2.Visibility = False
body4.Visibility = False
body6.Visibility = False
body8.Visibility = False
mirroring.Visibility = False
mirroring2.Visibility = False
mirroring3.Visibility = False
mirroring4.Visibility = False

doc.recompute()
